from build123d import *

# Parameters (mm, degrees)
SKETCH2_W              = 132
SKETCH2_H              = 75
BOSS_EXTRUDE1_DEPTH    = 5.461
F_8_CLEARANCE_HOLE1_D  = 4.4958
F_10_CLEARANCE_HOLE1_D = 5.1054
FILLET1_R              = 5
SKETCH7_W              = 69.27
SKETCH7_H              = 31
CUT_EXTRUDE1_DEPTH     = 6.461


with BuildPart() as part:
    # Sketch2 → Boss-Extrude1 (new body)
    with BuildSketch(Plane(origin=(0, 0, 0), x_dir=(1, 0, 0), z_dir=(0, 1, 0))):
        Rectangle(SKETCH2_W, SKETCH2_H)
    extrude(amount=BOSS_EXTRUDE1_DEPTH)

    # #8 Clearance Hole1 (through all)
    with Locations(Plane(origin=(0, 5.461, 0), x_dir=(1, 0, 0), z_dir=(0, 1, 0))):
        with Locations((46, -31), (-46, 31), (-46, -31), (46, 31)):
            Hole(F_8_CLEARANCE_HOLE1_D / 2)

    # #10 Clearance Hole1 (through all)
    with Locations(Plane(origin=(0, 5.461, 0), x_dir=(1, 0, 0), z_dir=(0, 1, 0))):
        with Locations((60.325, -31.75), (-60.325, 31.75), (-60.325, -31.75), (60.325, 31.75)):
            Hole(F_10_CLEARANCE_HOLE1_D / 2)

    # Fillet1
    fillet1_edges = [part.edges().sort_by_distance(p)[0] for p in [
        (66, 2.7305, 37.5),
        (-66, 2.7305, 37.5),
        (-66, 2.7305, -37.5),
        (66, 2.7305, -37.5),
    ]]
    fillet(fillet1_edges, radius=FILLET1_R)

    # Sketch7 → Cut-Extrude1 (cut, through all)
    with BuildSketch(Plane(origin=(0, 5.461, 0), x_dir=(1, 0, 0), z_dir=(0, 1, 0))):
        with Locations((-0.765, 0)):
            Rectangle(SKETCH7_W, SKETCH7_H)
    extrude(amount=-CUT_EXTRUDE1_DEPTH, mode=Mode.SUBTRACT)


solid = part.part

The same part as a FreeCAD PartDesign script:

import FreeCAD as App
import Part
import Sketcher


def edges_at(feature, points):
    """Names of the edges that pass closest to the given points."""
    edges = feature.Shape.Edges
    near = lambda p: min(range(len(edges)), key=lambda i: edges[i].distToShape(Part.Vertex(*p))[0])
    return sorted({f"Edge{near(p) + 1}" for p in points})

doc = App.newDocument("Part")
body = doc.addObject("PartDesign::Body", "Body")

# Sketch on XZ plane
sketch1 = doc.addObject("Sketcher::SketchObject", "Sketch")
body.addObject(sketch1)
sketch1.AttachmentSupport = (doc.XZ_Plane, [""])
sketch1.MapMode = "FlatFace"
sketch1.addGeometry([
    Part.LineSegment(App.Vector(-66, -38, 0), App.Vector(-66, 38, 0)),
    Part.LineSegment(App.Vector(-66, 38, 0), App.Vector(66, 38, 0)),
    Part.LineSegment(App.Vector(66, 38, 0), App.Vector(66, -38, 0)),
    Part.LineSegment(App.Vector(66, -38, 0), App.Vector(-66, -38, 0)),
], False)
sketch1.addConstraint([
    Sketcher.Constraint("Coincident", 0, 2, 1, 1),
    Sketcher.Constraint("Coincident", 1, 2, 2, 1),
    Sketcher.Constraint("Coincident", 2, 2, 3, 1),
    Sketcher.Constraint("Coincident", 3, 2, 0, 1),
    Sketcher.Constraint("Vertical", 0),
    Sketcher.Constraint("Horizontal", 1),
    Sketcher.Constraint("Vertical", 2),
    Sketcher.Constraint("Horizontal", 3),
    Sketcher.Constraint("Symmetric", 0, 2, 2, 2, -1, 1),
    Sketcher.Constraint("DistanceX", 1, 1, 1, 2, 132.0),
    Sketcher.Constraint("DistanceY", 0, 1, 0, 2, 75.0),
])
pad1 = doc.addObject("PartDesign::Pad", "Pad")
body.addObject(pad1)
pad1.Profile = sketch1
pad1.Length = 5.461
pad1.Reversed = True

# Sketch on XZ plane
sketch2 = doc.addObject("Sketcher::SketchObject", "Sketch001")
body.addObject(sketch2)
sketch2.AttachmentSupport = (doc.XZ_Plane, [""])
sketch2.MapMode = "FlatFace"
sketch2.AttachmentOffset = App.Placement(App.Vector(0, 0, -5.461), App.Rotation())
sketch2.addGeometry([
    Part.Circle(App.Vector(46, 31, 0), App.Vector(0, 0, 1), 2.2),
    Part.Circle(App.Vector(-46, -31, 0), App.Vector(0, 0, 1), 2.2),
    Part.Circle(App.Vector(-46, 31, 0), App.Vector(0, 0, 1), 2.2),
    Part.Circle(App.Vector(46, -31, 0), App.Vector(0, 0, 1), 2.2),
], False)
sketch2.addConstraint([
    Sketcher.Constraint("Equal", 0, 1),
    Sketcher.Constraint("Equal", 1, 2),
    Sketcher.Constraint("Equal", 2, 3),
    Sketcher.Constraint("Symmetric", 0, 3, 1, 3, -1, 1),
    Sketcher.Constraint("Symmetric", 2, 3, 3, 3, -1, 1),
    Sketcher.Constraint("Symmetric", 0, 3, 2, 3, -2),
    Sketcher.Constraint("DistanceX", -1, 1, 0, 3, 46.0),
    Sketcher.Constraint("DistanceY", -1, 1, 0, 3, 31.0),
    Sketcher.Constraint("Diameter", 0, 4.4958),
])
doc.recompute()
hole = doc.addObject("PartDesign::Hole", "Hole")
body.addObject(hole)
hole.Profile = sketch2
hole.ThreadType = "None"
hole.Diameter = 4.4958
hole.DepthType = "ThroughAll"
hole.Reversed = True

# Sketch on XZ plane
sketch3 = doc.addObject("Sketcher::SketchObject", "Sketch002")
body.addObject(sketch3)
sketch3.AttachmentSupport = (doc.XZ_Plane, [""])
sketch3.MapMode = "FlatFace"
sketch3.AttachmentOffset = App.Placement(App.Vector(0, 0, -5.461), App.Rotation())
sketch3.addGeometry([
    Part.Circle(App.Vector(60.3, 31.8, 0), App.Vector(0, 0, 1), 2.6),
    Part.Circle(App.Vector(-60.3, -31.8, 0), App.Vector(0, 0, 1), 2.6),
    Part.Circle(App.Vector(-60.3, 31.8, 0), App.Vector(0, 0, 1), 2.6),
    Part.Circle(App.Vector(60.3, -31.8, 0), App.Vector(0, 0, 1), 2.6),
], False)
sketch3.addConstraint([
    Sketcher.Constraint("Equal", 0, 1),
    Sketcher.Constraint("Equal", 1, 2),
    Sketcher.Constraint("Equal", 2, 3),
    Sketcher.Constraint("Symmetric", 0, 3, 1, 3, -1, 1),
    Sketcher.Constraint("Symmetric", 2, 3, 3, 3, -1, 1),
    Sketcher.Constraint("Symmetric", 0, 3, 2, 3, -2),
    Sketcher.Constraint("Diameter", 0, 5.1054),
    Sketcher.Constraint("DistanceY", 1, 3, 0, 3, 63.5),
    Sketcher.Constraint("DistanceX", 1, 3, 0, 3, 120.65),
])
doc.recompute()
hole2 = doc.addObject("PartDesign::Hole", "Hole001")
body.addObject(hole2)
hole2.Profile = sketch3
hole2.ThreadType = "None"
hole2.Diameter = 5.1054
hole2.DepthType = "ThroughAll"
hole2.Reversed = True
doc.recompute()

fillet = doc.addObject("PartDesign::Fillet", "Fillet")
body.addObject(fillet)
fillet.Base = (hole2, edges_at(hole2, [
    (66, 2.731, 37.5),
    (-66, 2.731, 37.5),
    (-66, 2.731, -37.5),
    (66, 2.731, -37.5),
]))
fillet.Radius = 5

# Sketch on XZ plane
sketch4 = doc.addObject("Sketcher::SketchObject", "Sketch003")
body.addObject(sketch4)
sketch4.AttachmentSupport = (doc.XZ_Plane, [""])
sketch4.MapMode = "FlatFace"
sketch4.AttachmentOffset = App.Placement(App.Vector(0, 0, -5.461), App.Rotation())
sketch4.addGeometry([
    Part.LineSegment(App.Vector(-35, -16, 0), App.Vector(-35, 16, 0)),
    Part.LineSegment(App.Vector(-35, 16, 0), App.Vector(34, 16, 0)),
    Part.LineSegment(App.Vector(34, 16, 0), App.Vector(34, -16, 0)),
    Part.LineSegment(App.Vector(34, -16, 0), App.Vector(-35, -16, 0)),
], False)
sketch4.addConstraint([
    Sketcher.Constraint("Coincident", 0, 2, 1, 1),
    Sketcher.Constraint("Coincident", 1, 2, 2, 1),
    Sketcher.Constraint("Coincident", 2, 2, 3, 1),
    Sketcher.Constraint("Coincident", 3, 2, 0, 1),
    Sketcher.Constraint("Vertical", 0),
    Sketcher.Constraint("Horizontal", 1),
    Sketcher.Constraint("Vertical", 2),
    Sketcher.Constraint("Horizontal", 3),
    Sketcher.Constraint("DistanceY", 0, 1, 0, 2, 31.0),
    Sketcher.Constraint("DistanceX", 1, 1, 1, 2, 69.27),
    Sketcher.Constraint("DistanceX", 0, 2, -1, 1, 35.4),
    Sketcher.Constraint("DistanceY", -1, 1, 0, 2, 15.5),
])
pocket1 = doc.addObject("PartDesign::Pocket", "Pocket")
body.addObject(pocket1)
pocket1.Profile = sketch4
pocket1.Type = "ThroughAll"
pocket1.Reversed = True

doc.recompute()
